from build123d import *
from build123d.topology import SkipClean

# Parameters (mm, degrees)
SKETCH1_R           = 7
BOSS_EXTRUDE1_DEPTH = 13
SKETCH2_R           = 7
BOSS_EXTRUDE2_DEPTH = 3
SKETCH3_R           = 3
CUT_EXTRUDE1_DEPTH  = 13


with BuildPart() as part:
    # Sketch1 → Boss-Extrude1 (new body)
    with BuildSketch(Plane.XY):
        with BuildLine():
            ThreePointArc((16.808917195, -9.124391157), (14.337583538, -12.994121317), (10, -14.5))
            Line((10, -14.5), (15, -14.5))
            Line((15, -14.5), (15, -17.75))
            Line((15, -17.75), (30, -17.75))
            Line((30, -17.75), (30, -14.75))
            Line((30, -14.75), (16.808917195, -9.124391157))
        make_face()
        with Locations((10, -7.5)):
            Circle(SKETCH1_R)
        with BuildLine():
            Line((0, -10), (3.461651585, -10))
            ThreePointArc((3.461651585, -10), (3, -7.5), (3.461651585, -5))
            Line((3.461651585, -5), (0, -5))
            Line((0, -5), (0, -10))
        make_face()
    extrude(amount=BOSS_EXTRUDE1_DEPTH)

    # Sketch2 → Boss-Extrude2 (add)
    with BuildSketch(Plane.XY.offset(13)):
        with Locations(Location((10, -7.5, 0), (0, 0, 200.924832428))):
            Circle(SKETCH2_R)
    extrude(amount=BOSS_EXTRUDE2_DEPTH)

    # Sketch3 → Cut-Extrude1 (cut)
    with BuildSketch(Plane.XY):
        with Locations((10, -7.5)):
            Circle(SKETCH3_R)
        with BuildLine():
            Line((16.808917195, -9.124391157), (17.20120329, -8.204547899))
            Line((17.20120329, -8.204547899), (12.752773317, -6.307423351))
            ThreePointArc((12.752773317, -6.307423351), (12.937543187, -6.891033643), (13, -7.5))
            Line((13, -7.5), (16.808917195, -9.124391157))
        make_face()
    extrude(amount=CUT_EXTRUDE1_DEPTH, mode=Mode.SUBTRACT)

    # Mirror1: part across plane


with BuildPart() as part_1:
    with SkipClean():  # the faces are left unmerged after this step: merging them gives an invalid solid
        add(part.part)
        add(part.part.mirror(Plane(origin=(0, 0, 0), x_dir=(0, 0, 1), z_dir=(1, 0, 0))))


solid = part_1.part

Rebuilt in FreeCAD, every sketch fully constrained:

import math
import FreeCAD as App
import Part
import Sketcher

V = App.Vector

doc = App.newDocument("Part")
body = doc.addObject("PartDesign::Body", "Body")

# Sketch on XY plane
sketch1 = doc.addObject("Sketcher::SketchObject", "Sketch")
body.addObject(sketch1)
sketch1.AttachmentSupport = (doc.XY_Plane, [""])
sketch1.MapMode = "FlatFace"
sketch1.addGeometry(Part.LineSegment(V(10, -14.5, 0), V(15, -14.5, 0)), False)
sketch1.addGeometry(Part.LineSegment(V(15, -14.5, 0), V(15, -17.8, 0)), False)
sketch1.addGeometry(Part.LineSegment(V(15, -17.8, 0), V(30, -17.8, 0)), False)
sketch1.addGeometry(Part.LineSegment(V(30, -17.8, 0), V(30, -14.8, 0)), False)
sketch1.addGeometry(Part.LineSegment(V(30, -14.8, 0), V(16.8, -9.1, 0)), False)
sketch1.addGeometry(Part.ArcOfCircle(Part.Circle(V(10, -7.5, 0), V(0, 0, 1), 7), math.radians(-13), math.radians(159)), False)
sketch1.addGeometry(Part.LineSegment(V(3.5, -5, 0), V(0, -5, 0)), False)
sketch1.addGeometry(Part.LineSegment(V(0, -5, 0), V(0, -10, 0)), False)
sketch1.addGeometry(Part.LineSegment(V(0, -10, 0), V(3.5, -10, 0)), False)
sketch1.addGeometry(Part.ArcOfCircle(Part.Circle(V(10, -7.5, 0), V(0, 0, 1), 7), math.radians(-159), math.radians(-90)), False)
sketch1.addConstraint(Sketcher.Constraint("Coincident", 0, 2, 1, 1))
sketch1.addConstraint(Sketcher.Constraint("Coincident", 1, 2, 2, 1))
sketch1.addConstraint(Sketcher.Constraint("Coincident", 2, 2, 3, 1))
sketch1.addConstraint(Sketcher.Constraint("Coincident", 3, 2, 4, 1))
sketch1.addConstraint(Sketcher.Constraint("Coincident", 4, 2, 5, 1))
sketch1.addConstraint(Sketcher.Constraint("Coincident", 5, 2, 6, 1))
sketch1.addConstraint(Sketcher.Constraint("Coincident", 6, 2, 7, 1))
sketch1.addConstraint(Sketcher.Constraint("Coincident", 7, 2, 8, 1))
sketch1.addConstraint(Sketcher.Constraint("Coincident", 8, 2, 9, 1))
sketch1.addConstraint(Sketcher.Constraint("Tangent", 9, 2, 0, 1))
sketch1.addConstraint(Sketcher.Constraint("Horizontal", 0))
sketch1.addConstraint(Sketcher.Constraint("Vertical", 1))
sketch1.addConstraint(Sketcher.Constraint("Horizontal", 2))
sketch1.addConstraint(Sketcher.Constraint("Vertical", 3))
sketch1.addConstraint(Sketcher.Constraint("Horizontal", 6))
sketch1.addConstraint(Sketcher.Constraint("Vertical", 7))
sketch1.addConstraint(Sketcher.Constraint("Horizontal", 8))
sketch1.addConstraint(Sketcher.Constraint("Coincident", 9, 3, 5, 3))
sketch1.addConstraint(Sketcher.Constraint("Equal", 5, 9))
sketch1.addConstraint(Sketcher.Constraint("PointOnObject", 6, 2, -2))
sketch1.addConstraint(Sketcher.Constraint("Vertical", 5, 2, 8, 2))
sketch1.addConstraint(Sketcher.Constraint("Equal", 0, 7))
sketch1.addConstraint(Sketcher.Constraint("Radius", 5, 7.0))
sketch1.addConstraint(Sketcher.Constraint("DistanceX", 0, 1, 0, 2, 5.0))
sketch1.addConstraint(Sketcher.Constraint("DistanceX", 2, 1, 2, 2, 15.0))
sketch1.addConstraint(Sketcher.Constraint("DistanceY", 3, 1, 3, 2, 3.0))
sketch1.addConstraint(Sketcher.Constraint("DistanceX", -1, 1, 5, 3, 10.0))
sketch1.addConstraint(Sketcher.Constraint("DistanceY", 5, 2, -1, 1, 5.0))
sketch1.addConstraint(Sketcher.Constraint("DistanceY", 1, 2, 1, 1, 3.25))
sketch1.addConstraint(Sketcher.Constraint("DistanceY", 4, 2, -1, 1, 9.124391))
pad1 = doc.addObject("PartDesign::Pad", "Pad")
body.addObject(pad1)
pad1.Profile = sketch1
pad1.Length = 13

# Sketch on XY plane
sketch2 = doc.addObject("Sketcher::SketchObject", "Sketch001")
body.addObject(sketch2)
sketch2.AttachmentSupport = (doc.XY_Plane, [""])
sketch2.MapMode = "FlatFace"
sketch2.AttachmentOffset = App.Placement(V(0, 0, 13), App.Rotation())
sketch2.addGeometry(Part.Circle(V(10, -8, 0), V(0, 0, 1), 7), False)
sketch2.addConstraint(Sketcher.Constraint("Diameter", 0, 14.0))
sketch2.addConstraint(Sketcher.Constraint("DistanceX", -1, 1, 0, 3, 10.0))
sketch2.addConstraint(Sketcher.Constraint("DistanceY", 0, 3, -1, 1, 7.5))
pad2 = doc.addObject("PartDesign::Pad", "Pad001")
body.addObject(pad2)
pad2.Profile = sketch2
pad2.Length = 3

# Sketch on XY plane
sketch3 = doc.addObject("Sketcher::SketchObject", "Sketch002")
body.addObject(sketch3)
sketch3.AttachmentSupport = (doc.XY_Plane, [""])
sketch3.MapMode = "FlatFace"
sketch3.addGeometry(Part.ArcOfCircle(Part.Circle(V(10, -7.5, 0), V(0, 0, 1), 3), math.radians(23), math.radians(360)), False)
sketch3.addGeometry(Part.LineSegment(V(13, -7.5, 0), V(16.8, -9.1, 0)), False)
sketch3.addGeometry(Part.LineSegment(V(16.8, -9.1, 0), V(17.2, -8.2, 0)), False)
sketch3.addGeometry(Part.LineSegment(V(17.2, -8.2, 0), V(12.8, -6.3, 0)), False)
sketch3.addConstraint(Sketcher.Constraint("Coincident", 0, 2, 1, 1))
sketch3.addConstraint(Sketcher.Constraint("Coincident", 1, 2, 2, 1))
sketch3.addConstraint(Sketcher.Constraint("Coincident", 2, 2, 3, 1))
sketch3.addConstraint(Sketcher.Constraint("Coincident", 3, 2, 0, 1))
sketch3.addConstraint(Sketcher.Constraint("Perpendicular", 1, 2))
sketch3.addConstraint(Sketcher.Constraint("Perpendicular", 2, 3))
sketch3.addConstraint(Sketcher.Constraint("Radius", 0, 3.0))
sketch3.addConstraint(Sketcher.Constraint("Distance", 2, 1.0))
sketch3.addConstraint(Sketcher.Constraint("DistanceX", -1, 1, 0, 3, 10.0))
sketch3.addConstraint(Sketcher.Constraint("DistanceY", 0, 3, -1, 1, 7.5))
sketch3.addConstraint(Sketcher.Constraint("DistanceY", 0, 2, -1, 1, 7.5))
sketch3.addConstraint(Sketcher.Constraint("DistanceY", 1, 2, -1, 1, 9.124391))
sketch3.addConstraint(Sketcher.Constraint("DistanceX", 3, 2, 2, 2, 4.44843))
pocket1 = doc.addObject("PartDesign::Pocket", "Pocket")
body.addObject(pocket1)
pocket1.Profile = sketch3
pocket1.Length = 13
pocket1.Reversed = True
body2 = doc.addObject("PartDesign::Body", "Body001")
doc.recompute()

body2.BaseFeature = body
doc.recompute()

mirroring = doc.addObject("Part::Mirroring", "Mirroring")
mirroring.Source = body
mirroring.Base = V(0, 0, 0)
mirroring.Normal = V(1, 0, 0)
body3 = doc.addObject("PartDesign::Body", "Body002")
body3.BaseFeature = mirroring
boolean = doc.addObject("PartDesign::Boolean", "Boolean")
body2.addObject(boolean)
boolean.Type = "Fuse"
boolean.addObjects([body3])
doc.recompute()
mirroring.Visibility = False

doc.recompute()
